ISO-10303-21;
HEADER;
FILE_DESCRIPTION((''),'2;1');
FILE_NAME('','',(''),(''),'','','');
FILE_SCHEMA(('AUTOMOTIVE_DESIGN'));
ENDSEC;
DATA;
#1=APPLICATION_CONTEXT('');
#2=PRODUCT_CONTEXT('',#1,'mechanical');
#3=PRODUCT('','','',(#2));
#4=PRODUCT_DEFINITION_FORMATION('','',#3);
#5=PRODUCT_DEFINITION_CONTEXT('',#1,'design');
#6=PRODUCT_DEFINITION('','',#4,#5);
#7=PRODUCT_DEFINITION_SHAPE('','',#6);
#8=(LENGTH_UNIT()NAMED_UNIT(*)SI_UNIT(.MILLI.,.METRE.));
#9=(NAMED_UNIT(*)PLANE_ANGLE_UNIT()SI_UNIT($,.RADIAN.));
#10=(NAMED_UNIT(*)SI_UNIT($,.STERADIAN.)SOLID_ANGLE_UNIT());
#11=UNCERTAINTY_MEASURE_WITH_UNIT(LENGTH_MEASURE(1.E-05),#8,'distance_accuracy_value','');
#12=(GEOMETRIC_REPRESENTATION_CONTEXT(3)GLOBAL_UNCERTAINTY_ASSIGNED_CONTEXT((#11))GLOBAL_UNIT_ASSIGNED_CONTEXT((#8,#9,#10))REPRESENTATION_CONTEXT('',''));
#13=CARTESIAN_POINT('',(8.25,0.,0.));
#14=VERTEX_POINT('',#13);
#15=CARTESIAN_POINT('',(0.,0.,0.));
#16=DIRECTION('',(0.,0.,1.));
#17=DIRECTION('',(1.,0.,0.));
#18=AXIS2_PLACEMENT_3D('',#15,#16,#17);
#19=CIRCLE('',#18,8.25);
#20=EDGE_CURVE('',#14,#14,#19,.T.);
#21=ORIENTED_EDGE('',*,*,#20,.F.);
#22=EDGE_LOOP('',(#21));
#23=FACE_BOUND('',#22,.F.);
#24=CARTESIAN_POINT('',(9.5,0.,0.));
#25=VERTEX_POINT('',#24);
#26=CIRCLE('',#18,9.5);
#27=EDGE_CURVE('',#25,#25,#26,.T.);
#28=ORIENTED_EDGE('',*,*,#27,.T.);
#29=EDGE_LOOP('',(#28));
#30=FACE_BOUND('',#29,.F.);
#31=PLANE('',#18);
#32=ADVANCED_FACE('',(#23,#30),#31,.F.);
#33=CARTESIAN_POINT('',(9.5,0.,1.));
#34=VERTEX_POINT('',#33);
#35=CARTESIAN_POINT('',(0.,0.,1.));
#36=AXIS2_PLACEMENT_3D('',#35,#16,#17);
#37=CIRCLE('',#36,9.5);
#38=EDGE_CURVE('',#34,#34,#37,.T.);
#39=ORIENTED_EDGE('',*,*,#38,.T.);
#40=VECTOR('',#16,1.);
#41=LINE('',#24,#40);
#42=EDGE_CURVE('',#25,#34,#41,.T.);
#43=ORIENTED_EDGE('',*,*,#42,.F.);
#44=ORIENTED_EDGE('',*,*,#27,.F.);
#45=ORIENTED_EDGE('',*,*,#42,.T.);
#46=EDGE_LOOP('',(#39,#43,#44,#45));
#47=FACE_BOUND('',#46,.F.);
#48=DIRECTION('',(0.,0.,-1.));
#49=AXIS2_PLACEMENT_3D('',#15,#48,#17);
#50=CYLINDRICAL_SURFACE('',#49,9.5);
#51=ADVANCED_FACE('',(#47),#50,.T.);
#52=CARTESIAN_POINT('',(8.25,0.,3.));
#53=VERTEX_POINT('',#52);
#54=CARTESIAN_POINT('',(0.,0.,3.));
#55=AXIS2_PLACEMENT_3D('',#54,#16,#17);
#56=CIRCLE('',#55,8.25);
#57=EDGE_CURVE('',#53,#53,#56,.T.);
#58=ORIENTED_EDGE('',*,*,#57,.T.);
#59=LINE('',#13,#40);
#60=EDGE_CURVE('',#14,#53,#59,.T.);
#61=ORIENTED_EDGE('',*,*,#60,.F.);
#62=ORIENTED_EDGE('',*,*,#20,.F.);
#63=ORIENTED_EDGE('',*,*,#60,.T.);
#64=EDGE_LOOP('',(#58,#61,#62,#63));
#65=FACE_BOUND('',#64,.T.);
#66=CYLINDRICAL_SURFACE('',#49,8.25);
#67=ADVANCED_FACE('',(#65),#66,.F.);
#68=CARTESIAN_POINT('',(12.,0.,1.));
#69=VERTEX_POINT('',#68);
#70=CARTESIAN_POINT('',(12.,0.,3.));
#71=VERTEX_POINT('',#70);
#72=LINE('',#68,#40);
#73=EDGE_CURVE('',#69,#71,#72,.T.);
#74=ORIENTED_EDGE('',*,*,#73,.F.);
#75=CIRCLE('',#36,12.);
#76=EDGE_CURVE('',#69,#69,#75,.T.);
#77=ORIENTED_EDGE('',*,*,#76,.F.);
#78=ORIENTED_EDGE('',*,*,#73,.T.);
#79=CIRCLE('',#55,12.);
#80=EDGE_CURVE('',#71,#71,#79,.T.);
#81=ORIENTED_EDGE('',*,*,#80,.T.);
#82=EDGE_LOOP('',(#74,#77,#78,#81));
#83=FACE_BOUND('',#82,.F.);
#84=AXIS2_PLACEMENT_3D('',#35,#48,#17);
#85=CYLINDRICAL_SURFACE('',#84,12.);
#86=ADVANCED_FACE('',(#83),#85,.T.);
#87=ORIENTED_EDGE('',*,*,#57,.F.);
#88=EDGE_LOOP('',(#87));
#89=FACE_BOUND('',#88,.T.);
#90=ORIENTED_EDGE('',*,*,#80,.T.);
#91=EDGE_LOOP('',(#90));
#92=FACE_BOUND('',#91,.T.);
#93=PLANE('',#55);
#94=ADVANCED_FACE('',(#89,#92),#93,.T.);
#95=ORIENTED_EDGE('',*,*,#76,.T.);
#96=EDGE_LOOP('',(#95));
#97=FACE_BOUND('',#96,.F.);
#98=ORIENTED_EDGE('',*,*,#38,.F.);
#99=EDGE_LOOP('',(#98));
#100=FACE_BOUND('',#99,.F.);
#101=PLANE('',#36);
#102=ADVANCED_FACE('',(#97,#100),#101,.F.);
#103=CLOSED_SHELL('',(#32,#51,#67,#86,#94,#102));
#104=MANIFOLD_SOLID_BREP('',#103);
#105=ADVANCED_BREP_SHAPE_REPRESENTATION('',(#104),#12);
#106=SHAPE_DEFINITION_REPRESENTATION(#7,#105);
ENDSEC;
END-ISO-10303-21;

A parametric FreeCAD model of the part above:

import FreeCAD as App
import Part
import Sketcher

V = App.Vector

doc = App.newDocument("Part")
body = doc.addObject("PartDesign::Body", "Body")

sketch1 = doc.addObject("Sketcher::SketchObject", "Sketch")
body.addObject(sketch1)
sketch1.AttachmentSupport = (doc.XY_Plane, [""])
sketch1.MapMode = "FlatFace"
sketch1.addGeometry(Part.Circle(V(0, 0, 0), V(0, 0, 1), 10), False)
sketch1.addGeometry(Part.Circle(V(0, 0, 0), V(0, 0, 1), 8), False)
sketch1.addConstraint(Sketcher.Constraint("Coincident", 0, 3, -1, 1))
sketch1.addConstraint(Sketcher.Constraint("Coincident", 1, 3, -1, 1))
sketch1.addConstraint(Sketcher.Constraint("Diameter", 0, 19.0))
sketch1.addConstraint(Sketcher.Constraint("Diameter", 1, 16.5))
pad1 = doc.addObject("PartDesign::Pad", "Pad")
body.addObject(pad1)
pad1.Profile = sketch1
pad1.Length = 1
body2 = doc.addObject("PartDesign::Body", "Body001")

sketch2 = doc.addObject("Sketcher::SketchObject", "Sketch001")
body2.addObject(sketch2)
sketch2.AttachmentSupport = (doc.getObject("XY_Plane001"), [""])
sketch2.MapMode = "FlatFace"
sketch2.AttachmentOffset = App.Placement(V(0, 0, 1), App.Rotation())
sketch2.addGeometry(Part.Circle(V(0, 0, 0), V(0, 0, 1), 12), False)
sketch2.addGeometry(Part.Circle(V(0, 0, 0), V(0, 0, 1), 8), False)
sketch2.addConstraint(Sketcher.Constraint("Coincident", 0, 3, -1, 1))
sketch2.addConstraint(Sketcher.Constraint("Coincident", 1, 3, -1, 1))
sketch2.addConstraint(Sketcher.Constraint("Diameter", 0, 24.0))
sketch2.addConstraint(Sketcher.Constraint("Diameter", 1, 16.5))
pad2 = doc.addObject("PartDesign::Pad", "Pad001")
body2.addObject(pad2)
pad2.Profile = sketch2
pad2.Length = 2
doc.recompute()

boolean = doc.addObject("PartDesign::Boolean", "Boolean")
body2.addObject(boolean)
boolean.Type = "Fuse"
boolean.addObjects([body])

doc.recompute()
